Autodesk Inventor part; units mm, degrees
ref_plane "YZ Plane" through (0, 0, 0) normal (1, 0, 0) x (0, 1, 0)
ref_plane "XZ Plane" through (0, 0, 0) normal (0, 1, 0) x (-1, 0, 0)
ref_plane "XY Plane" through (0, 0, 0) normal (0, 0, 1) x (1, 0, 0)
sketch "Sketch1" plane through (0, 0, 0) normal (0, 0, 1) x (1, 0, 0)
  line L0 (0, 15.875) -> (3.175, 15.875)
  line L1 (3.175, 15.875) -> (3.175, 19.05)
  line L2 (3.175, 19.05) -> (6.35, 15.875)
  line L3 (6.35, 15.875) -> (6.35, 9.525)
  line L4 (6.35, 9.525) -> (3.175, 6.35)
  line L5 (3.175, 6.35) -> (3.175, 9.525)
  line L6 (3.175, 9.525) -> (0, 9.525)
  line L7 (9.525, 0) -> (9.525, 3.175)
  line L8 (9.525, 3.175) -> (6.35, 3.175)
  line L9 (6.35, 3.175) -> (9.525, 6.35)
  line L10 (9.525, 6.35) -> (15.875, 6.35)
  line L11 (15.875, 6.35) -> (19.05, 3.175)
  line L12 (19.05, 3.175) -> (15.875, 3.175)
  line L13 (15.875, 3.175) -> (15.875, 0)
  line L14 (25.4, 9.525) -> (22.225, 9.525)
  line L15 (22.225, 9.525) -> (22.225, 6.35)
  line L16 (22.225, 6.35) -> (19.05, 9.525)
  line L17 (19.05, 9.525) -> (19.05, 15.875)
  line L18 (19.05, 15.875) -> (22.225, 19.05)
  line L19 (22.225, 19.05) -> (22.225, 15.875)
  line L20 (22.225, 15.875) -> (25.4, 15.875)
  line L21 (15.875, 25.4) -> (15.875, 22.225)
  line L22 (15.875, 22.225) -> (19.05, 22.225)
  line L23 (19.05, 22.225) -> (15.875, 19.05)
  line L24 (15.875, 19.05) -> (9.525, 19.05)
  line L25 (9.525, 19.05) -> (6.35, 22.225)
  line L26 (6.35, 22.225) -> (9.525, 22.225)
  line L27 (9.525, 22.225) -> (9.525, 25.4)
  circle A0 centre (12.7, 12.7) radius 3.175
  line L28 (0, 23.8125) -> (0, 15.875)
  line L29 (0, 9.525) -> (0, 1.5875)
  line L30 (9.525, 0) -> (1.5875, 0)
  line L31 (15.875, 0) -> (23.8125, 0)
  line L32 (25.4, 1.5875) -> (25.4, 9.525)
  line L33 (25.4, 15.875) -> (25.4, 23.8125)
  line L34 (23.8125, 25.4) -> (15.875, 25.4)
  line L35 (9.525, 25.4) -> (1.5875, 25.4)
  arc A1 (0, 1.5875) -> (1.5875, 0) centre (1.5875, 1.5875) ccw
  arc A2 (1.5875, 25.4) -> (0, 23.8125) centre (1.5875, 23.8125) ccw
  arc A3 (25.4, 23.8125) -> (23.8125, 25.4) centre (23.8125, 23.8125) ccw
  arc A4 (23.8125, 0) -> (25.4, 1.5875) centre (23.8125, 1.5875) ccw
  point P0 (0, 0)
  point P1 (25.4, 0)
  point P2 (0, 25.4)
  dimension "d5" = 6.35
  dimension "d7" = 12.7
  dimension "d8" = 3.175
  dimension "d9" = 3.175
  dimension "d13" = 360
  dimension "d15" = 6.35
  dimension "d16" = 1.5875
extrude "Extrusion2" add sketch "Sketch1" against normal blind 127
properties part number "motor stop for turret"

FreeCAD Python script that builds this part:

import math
import FreeCAD as App
import Part
import Sketcher

V = App.Vector
Q = App.Units.Quantity

doc = App.newDocument("Part")
body = doc.addObject("PartDesign::Body", "Body")

# Sketch on XY plane
sketch1 = doc.addObject("Sketcher::SketchObject", "Sketch")
body.addObject(sketch1)
sketch1.AttachmentSupport = (doc.XY_Plane, [""])
sketch1.MapMode = "FlatFace"
sketch1.addGeometry(Part.LineSegment(V(0, 23.8, 0), V(0, 15.9, 0)), False)
sketch1.addGeometry(Part.LineSegment(V(0, 15.9, 0), V(3.2, 15.9, 0)), False)
sketch1.addGeometry(Part.LineSegment(V(3.2, 15.9, 0), V(3.2, 19.1, 0)), False)
sketch1.addGeometry(Part.LineSegment(V(3.2, 19.1, 0), V(6.3, 15.9, 0)), False)
sketch1.addGeometry(Part.LineSegment(V(6.3, 15.9, 0), V(6.3, 9.5, 0)), False)
sketch1.addGeometry(Part.LineSegment(V(6.3, 9.5, 0), V(3.2, 6.3, 0)), False)
sketch1.addGeometry(Part.LineSegment(V(3.2, 6.3, 0), V(3.2, 9.5, 0)), False)
sketch1.addGeometry(Part.LineSegment(V(3.2, 9.5, 0), V(0, 9.5, 0)), False)
sketch1.addGeometry(Part.LineSegment(V(0, 9.5, 0), V(0, 1.6, 0)), False)
sketch1.addGeometry(Part.ArcOfCircle(Part.Circle(V(1.6, 1.6, 0), V(0, 0, 1), 1.6), math.radians(180), math.radians(270)), False)
sketch1.addGeometry(Part.LineSegment(V(1.6, 0, 0), V(9.5, 0, 0)), False)
sketch1.addGeometry(Part.LineSegment(V(9.5, 0, 0), V(9.5, 3.2, 0)), False)
sketch1.addGeometry(Part.LineSegment(V(9.5, 3.2, 0), V(6.3, 3.2, 0)), False)
sketch1.addGeometry(Part.LineSegment(V(6.3, 3.2, 0), V(9.5, 6.3, 0)), False)
sketch1.addGeometry(Part.LineSegment(V(9.5, 6.3, 0), V(15.9, 6.3, 0)), False)
sketch1.addGeometry(Part.LineSegment(V(15.9, 6.3, 0), V(19.1, 3.2, 0)), False)
sketch1.addGeometry(Part.LineSegment(V(19.1, 3.2, 0), V(15.9, 3.2, 0)), False)
sketch1.addGeometry(Part.LineSegment(V(15.9, 3.2, 0), V(15.9, 0, 0)), False)
sketch1.addGeometry(Part.LineSegment(V(15.9, 0, 0), V(23.8, 0, 0)), False)
sketch1.addGeometry(Part.ArcOfCircle(Part.Circle(V(23.8, 1.6, 0), V(0, 0, 1), 1.6), math.radians(-90), math.radians(0)), False)
sketch1.addGeometry(Part.LineSegment(V(25.4, 1.6, 0), V(25.4, 9.5, 0)), False)
sketch1.addGeometry(Part.LineSegment(V(25.4, 9.5, 0), V(22.2, 9.5, 0)), False)
sketch1.addGeometry(Part.LineSegment(V(22.2, 9.5, 0), V(22.2, 6.3, 0)), False)
sketch1.addGeometry(Part.LineSegment(V(22.2, 6.3, 0), V(19.1, 9.5, 0)), False)
sketch1.addGeometry(Part.LineSegment(V(19.1, 9.5, 0), V(19.1, 15.9, 0)), False)
sketch1.addGeometry(Part.LineSegment(V(19.1, 15.9, 0), V(22.2, 19.1, 0)), False)
sketch1.addGeometry(Part.LineSegment(V(22.2, 19.1, 0), V(22.2, 15.9, 0)), False)
sketch1.addGeometry(Part.LineSegment(V(22.2, 15.9, 0), V(25.4, 15.9, 0)), False)
sketch1.addGeometry(Part.LineSegment(V(25.4, 15.9, 0), V(25.4, 23.8, 0)), False)
sketch1.addGeometry(Part.ArcOfCircle(Part.Circle(V(23.8, 23.8, 0), V(0, 0, 1), 1.6), math.radians(0), math.radians(90)), False)
sketch1.addGeometry(Part.LineSegment(V(23.8, 25.4, 0), V(15.9, 25.4, 0)), False)
sketch1.addGeometry(Part.LineSegment(V(15.9, 25.4, 0), V(15.9, 22.2, 0)), False)
sketch1.addGeometry(Part.LineSegment(V(15.9, 22.2, 0), V(19.1, 22.2, 0)), False)
sketch1.addGeometry(Part.LineSegment(V(19.1, 22.2, 0), V(15.9, 19.1, 0)), False)
sketch1.addGeometry(Part.LineSegment(V(15.9, 19.1, 0), V(9.5, 19.1, 0)), False)
sketch1.addGeometry(Part.LineSegment(V(9.5, 19.1, 0), V(6.3, 22.2, 0)), False)
sketch1.addGeometry(Part.LineSegment(V(6.3, 22.2, 0), V(9.5, 22.2, 0)), False)
sketch1.addGeometry(Part.LineSegment(V(9.5, 22.2, 0), V(9.5, 25.4, 0)), False)
sketch1.addGeometry(Part.LineSegment(V(9.5, 25.4, 0), V(1.6, 25.4, 0)), False)
sketch1.addGeometry(Part.ArcOfCircle(Part.Circle(V(1.6, 23.8, 0), V(0, 0, 1), 1.6), math.radians(90), math.radians(180)), False)
sketch1.addGeometry(Part.Circle(V(12.7, 12.7, 0), V(0, 0, 1), 3.2), False)
sketch1.addConstraint(Sketcher.Constraint("Coincident", 0, 2, 1, 1))
sketch1.addConstraint(Sketcher.Constraint("Coincident", 1, 2, 2, 1))
sketch1.addConstraint(Sketcher.Constraint("Coincident", 2, 2, 3, 1))
sketch1.addConstraint(Sketcher.Constraint("Coincident", 3, 2, 4, 1))
sketch1.addConstraint(Sketcher.Constraint("Coincident", 4, 2, 5, 1))
sketch1.addConstraint(Sketcher.Constraint("Coincident", 5, 2, 6, 1))
sketch1.addConstraint(Sketcher.Constraint("Coincident", 6, 2, 7, 1))
sketch1.addConstraint(Sketcher.Constraint("Coincident", 7, 2, 8, 1))
sketch1.addConstraint(Sketcher.Constraint("Tangent", 8, 2, 9, 1))
sketch1.addConstraint(Sketcher.Constraint("Tangent", 9, 2, 10, 1))
sketch1.addConstraint(Sketcher.Constraint("Coincident", 10, 2, 11, 1))
sketch1.addConstraint(Sketcher.Constraint("Coincident", 11, 2, 12, 1))
sketch1.addConstraint(Sketcher.Constraint("Coincident", 12, 2, 13, 1))
sketch1.addConstraint(Sketcher.Constraint("Coincident", 13, 2, 14, 1))
sketch1.addConstraint(Sketcher.Constraint("Coincident", 14, 2, 15, 1))
sketch1.addConstraint(Sketcher.Constraint("Coincident", 15, 2, 16, 1))
sketch1.addConstraint(Sketcher.Constraint("Coincident", 16, 2, 17, 1))
sketch1.addConstraint(Sketcher.Constraint("Coincident", 17, 2, 18, 1))
sketch1.addConstraint(Sketcher.Constraint("Tangent", 18, 2, 19, 1))
sketch1.addConstraint(Sketcher.Constraint("Tangent", 19, 2, 20, 1))
sketch1.addConstraint(Sketcher.Constraint("Coincident", 20, 2, 21, 1))
sketch1.addConstraint(Sketcher.Constraint("Coincident", 21, 2, 22, 1))
sketch1.addConstraint(Sketcher.Constraint("Coincident", 22, 2, 23, 1))
sketch1.addConstraint(Sketcher.Constraint("Coincident", 23, 2, 24, 1))
sketch1.addConstraint(Sketcher.Constraint("Coincident", 24, 2, 25, 1))
sketch1.addConstraint(Sketcher.Constraint("Coincident", 25, 2, 26, 1))
sketch1.addConstraint(Sketcher.Constraint("Coincident", 26, 2, 27, 1))
sketch1.addConstraint(Sketcher.Constraint("Coincident", 27, 2, 28, 1))
sketch1.addConstraint(Sketcher.Constraint("Tangent", 28, 2, 29, 1))
sketch1.addConstraint(Sketcher.Constraint("Tangent", 29, 2, 30, 1))
sketch1.addConstraint(Sketcher.Constraint("Coincident", 30, 2, 31, 1))
sketch1.addConstraint(Sketcher.Constraint("Coincident", 31, 2, 32, 1))
sketch1.addConstraint(Sketcher.Constraint("Coincident", 32, 2, 33, 1))
sketch1.addConstraint(Sketcher.Constraint("Coincident", 33, 2, 34, 1))
sketch1.addConstraint(Sketcher.Constraint("Coincident", 34, 2, 35, 1))
sketch1.addConstraint(Sketcher.Constraint("Coincident", 35, 2, 36, 1))
sketch1.addConstraint(Sketcher.Constraint("Coincident", 36, 2, 37, 1))
sketch1.addConstraint(Sketcher.Constraint("Coincident", 37, 2, 38, 1))
sketch1.addConstraint(Sketcher.Constraint("Tangent", 38, 2, 39, 1))
sketch1.addConstraint(Sketcher.Constraint("Tangent", 39, 2, 0, 1))
sketch1.addConstraint(Sketcher.Constraint("Vertical", 0))
sketch1.addConstraint(Sketcher.Constraint("Horizontal", 1))
sketch1.addConstraint(Sketcher.Constraint("Vertical", 2))
sketch1.addConstraint(Sketcher.Constraint("Vertical", 4))
sketch1.addConstraint(Sketcher.Constraint("Vertical", 6))
sketch1.addConstraint(Sketcher.Constraint("Horizontal", 7))
sketch1.addConstraint(Sketcher.Constraint("Vertical", 8))
sketch1.addConstraint(Sketcher.Constraint("Horizontal", 10))
sketch1.addConstraint(Sketcher.Constraint("Vertical", 11))
sketch1.addConstraint(Sketcher.Constraint("Horizontal", 12))
sketch1.addConstraint(Sketcher.Constraint("Horizontal", 14))
sketch1.addConstraint(Sketcher.Constraint("Horizontal", 16))
sketch1.addConstraint(Sketcher.Constraint("Vertical", 17))
sketch1.addConstraint(Sketcher.Constraint("Horizontal", 18))
sketch1.addConstraint(Sketcher.Constraint("Vertical", 20))
sketch1.addConstraint(Sketcher.Constraint("Horizontal", 21))
sketch1.addConstraint(Sketcher.Constraint("Vertical", 22))
sketch1.addConstraint(Sketcher.Constraint("Vertical", 24))
sketch1.addConstraint(Sketcher.Constraint("Vertical", 26))
sketch1.addConstraint(Sketcher.Constraint("Horizontal", 27))
sketch1.addConstraint(Sketcher.Constraint("Vertical", 28))
sketch1.addConstraint(Sketcher.Constraint("Horizontal", 30))
sketch1.addConstraint(Sketcher.Constraint("Vertical", 31))
sketch1.addConstraint(Sketcher.Constraint("Horizontal", 32))
sketch1.addConstraint(Sketcher.Constraint("Horizontal", 34))
sketch1.addConstraint(Sketcher.Constraint("Horizontal", 36))
sketch1.addConstraint(Sketcher.Constraint("Vertical", 37))
sketch1.addConstraint(Sketcher.Constraint("Horizontal", 38))
sketch1.addConstraint(Sketcher.Constraint("Equal", 9, 19))
sketch1.addConstraint(Sketcher.Constraint("Equal", 19, 29))
sketch1.addConstraint(Sketcher.Constraint("Equal", 29, 39))
sketch1.addConstraint(Sketcher.Constraint("PointOnObject", 0, 2, -2))
sketch1.addConstraint(Sketcher.Constraint("PointOnObject", 7, 2, -2))
sketch1.addConstraint(Sketcher.Constraint("PointOnObject", 9, 2, -1))
sketch1.addConstraint(Sketcher.Constraint("PointOnObject", 17, 2, -1))
sketch1.addConstraint(Sketcher.Constraint("Perpendicular", 3, 5))
sketch1.addConstraint(Sketcher.Constraint("Parallel", 5, 13))
sketch1.addConstraint(Sketcher.Constraint("Perpendicular", 13, 15))
sketch1.addConstraint(Sketcher.Constraint("Parallel", 15, 23))
sketch1.addConstraint(Sketcher.Constraint("Perpendicular", 23, 25))
sketch1.addConstraint(Sketcher.Constraint("Parallel", 25, 33))
sketch1.addConstraint(Sketcher.Constraint("Perpendicular", 33, 35))
sketch1.addConstraint(Sketcher.Constraint("Horizontal", 29, 3, 39, 3))
sketch1.addConstraint(Sketcher.Constraint("Horizontal", 1, 2, 3, 2))
sketch1.addConstraint(Sketcher.Constraint("Horizontal", 4, 2, 6, 2))
sketch1.addConstraint(Sketcher.Constraint("Horizontal", 5, 2, 13, 2))
sketch1.addConstraint(Sketcher.Constraint("Horizontal", 12, 2, 15, 2))
sketch1.addConstraint(Sketcher.Constraint("Horizontal", 7, 2, 20, 2))
sketch1.addConstraint(Sketcher.Constraint("Horizontal", 14, 2, 22, 2))
sketch1.addConstraint(Sketcher.Constraint("Horizontal", 21, 2, 23, 2))
sketch1.addConstraint(Sketcher.Constraint("Horizontal", 3, 2, 24, 2))
sketch1.addConstraint(Sketcher.Constraint("Horizontal", 2, 2, 25, 2))
sketch1.addConstraint(Sketcher.Constraint("Horizontal", 24, 2, 26, 2))
sketch1.addConstraint(Sketcher.Constraint("Horizontal", 25, 2, 33, 2))
sketch1.addConstraint(Sketcher.Constraint("Horizontal", 32, 2, 35, 2))
sketch1.addConstraint(Sketcher.Constraint("Vertical", 19, 3, 29, 3))
sketch1.addConstraint(Sketcher.Constraint("Vertical", 2, 2, 5, 2))
sketch1.addConstraint(Sketcher.Constraint("Vertical", 4, 2, 12, 2))
sketch1.addConstraint(Sketcher.Constraint("Vertical", 11, 2, 13, 2))
sketch1.addConstraint(Sketcher.Constraint("Vertical", 14, 2, 16, 2))
sketch1.addConstraint(Sketcher.Constraint("Vertical", 15, 2, 23, 2))
sketch1.addConstraint(Sketcher.Constraint("Vertical", 22, 2, 25, 2))
sketch1.addConstraint(Sketcher.Constraint("Vertical", 17, 2, 30, 2))
sketch1.addConstraint(Sketcher.Constraint("Vertical", 24, 2, 32, 2))
sketch1.addConstraint(Sketcher.Constraint("Vertical", 31, 2, 33, 2))
sketch1.addConstraint(Sketcher.Constraint("Vertical", 13, 2, 34, 2))
sketch1.addConstraint(Sketcher.Constraint("Vertical", 34, 2, 36, 2))
sketch1.addConstraint(Sketcher.Constraint("Equal", 7, 12))
sketch1.addConstraint(Sketcher.Constraint("Equal", 10, 18))
sketch1.addConstraint(Sketcher.Constraint("Equal", 38, 0))
sketch1.addConstraint(Sketcher.Constraint("Equal", 36, 2))
sketch1.addConstraint(Sketcher.Constraint("Equal", 34, 4))
sketch1.addConstraint(Sketcher.Constraint("Equal", 0, 8))
sketch1.addConstraint(Sketcher.Constraint("Diameter", 40, Q("0.25 in")))
sketch1.addConstraint(Sketcher.Constraint("Radius", 9, Q("0.0625 in")))
sketch1.addConstraint(Sketcher.Constraint("DistanceX", 14, 1, 14, 2, Q("0.25 in")))
sketch1.addConstraint(Sketcher.Constraint("DistanceX", -1, 1, 40, 3, Q("0.5 in")))
sketch1.addConstraint(Sketcher.Constraint("DistanceY", -1, 1, 40, 3, Q("0.5 in")))
sketch1.addConstraint(Sketcher.Constraint("DistanceX", 1, 1, 1, 2, Q("0.125 in")))
pad1 = doc.addObject("PartDesign::Pad", "Pad")
body.addObject(pad1)
pad1.Profile = sketch1
pad1.Length = Q("5 in")
pad1.Reversed = True

doc.recompute()
